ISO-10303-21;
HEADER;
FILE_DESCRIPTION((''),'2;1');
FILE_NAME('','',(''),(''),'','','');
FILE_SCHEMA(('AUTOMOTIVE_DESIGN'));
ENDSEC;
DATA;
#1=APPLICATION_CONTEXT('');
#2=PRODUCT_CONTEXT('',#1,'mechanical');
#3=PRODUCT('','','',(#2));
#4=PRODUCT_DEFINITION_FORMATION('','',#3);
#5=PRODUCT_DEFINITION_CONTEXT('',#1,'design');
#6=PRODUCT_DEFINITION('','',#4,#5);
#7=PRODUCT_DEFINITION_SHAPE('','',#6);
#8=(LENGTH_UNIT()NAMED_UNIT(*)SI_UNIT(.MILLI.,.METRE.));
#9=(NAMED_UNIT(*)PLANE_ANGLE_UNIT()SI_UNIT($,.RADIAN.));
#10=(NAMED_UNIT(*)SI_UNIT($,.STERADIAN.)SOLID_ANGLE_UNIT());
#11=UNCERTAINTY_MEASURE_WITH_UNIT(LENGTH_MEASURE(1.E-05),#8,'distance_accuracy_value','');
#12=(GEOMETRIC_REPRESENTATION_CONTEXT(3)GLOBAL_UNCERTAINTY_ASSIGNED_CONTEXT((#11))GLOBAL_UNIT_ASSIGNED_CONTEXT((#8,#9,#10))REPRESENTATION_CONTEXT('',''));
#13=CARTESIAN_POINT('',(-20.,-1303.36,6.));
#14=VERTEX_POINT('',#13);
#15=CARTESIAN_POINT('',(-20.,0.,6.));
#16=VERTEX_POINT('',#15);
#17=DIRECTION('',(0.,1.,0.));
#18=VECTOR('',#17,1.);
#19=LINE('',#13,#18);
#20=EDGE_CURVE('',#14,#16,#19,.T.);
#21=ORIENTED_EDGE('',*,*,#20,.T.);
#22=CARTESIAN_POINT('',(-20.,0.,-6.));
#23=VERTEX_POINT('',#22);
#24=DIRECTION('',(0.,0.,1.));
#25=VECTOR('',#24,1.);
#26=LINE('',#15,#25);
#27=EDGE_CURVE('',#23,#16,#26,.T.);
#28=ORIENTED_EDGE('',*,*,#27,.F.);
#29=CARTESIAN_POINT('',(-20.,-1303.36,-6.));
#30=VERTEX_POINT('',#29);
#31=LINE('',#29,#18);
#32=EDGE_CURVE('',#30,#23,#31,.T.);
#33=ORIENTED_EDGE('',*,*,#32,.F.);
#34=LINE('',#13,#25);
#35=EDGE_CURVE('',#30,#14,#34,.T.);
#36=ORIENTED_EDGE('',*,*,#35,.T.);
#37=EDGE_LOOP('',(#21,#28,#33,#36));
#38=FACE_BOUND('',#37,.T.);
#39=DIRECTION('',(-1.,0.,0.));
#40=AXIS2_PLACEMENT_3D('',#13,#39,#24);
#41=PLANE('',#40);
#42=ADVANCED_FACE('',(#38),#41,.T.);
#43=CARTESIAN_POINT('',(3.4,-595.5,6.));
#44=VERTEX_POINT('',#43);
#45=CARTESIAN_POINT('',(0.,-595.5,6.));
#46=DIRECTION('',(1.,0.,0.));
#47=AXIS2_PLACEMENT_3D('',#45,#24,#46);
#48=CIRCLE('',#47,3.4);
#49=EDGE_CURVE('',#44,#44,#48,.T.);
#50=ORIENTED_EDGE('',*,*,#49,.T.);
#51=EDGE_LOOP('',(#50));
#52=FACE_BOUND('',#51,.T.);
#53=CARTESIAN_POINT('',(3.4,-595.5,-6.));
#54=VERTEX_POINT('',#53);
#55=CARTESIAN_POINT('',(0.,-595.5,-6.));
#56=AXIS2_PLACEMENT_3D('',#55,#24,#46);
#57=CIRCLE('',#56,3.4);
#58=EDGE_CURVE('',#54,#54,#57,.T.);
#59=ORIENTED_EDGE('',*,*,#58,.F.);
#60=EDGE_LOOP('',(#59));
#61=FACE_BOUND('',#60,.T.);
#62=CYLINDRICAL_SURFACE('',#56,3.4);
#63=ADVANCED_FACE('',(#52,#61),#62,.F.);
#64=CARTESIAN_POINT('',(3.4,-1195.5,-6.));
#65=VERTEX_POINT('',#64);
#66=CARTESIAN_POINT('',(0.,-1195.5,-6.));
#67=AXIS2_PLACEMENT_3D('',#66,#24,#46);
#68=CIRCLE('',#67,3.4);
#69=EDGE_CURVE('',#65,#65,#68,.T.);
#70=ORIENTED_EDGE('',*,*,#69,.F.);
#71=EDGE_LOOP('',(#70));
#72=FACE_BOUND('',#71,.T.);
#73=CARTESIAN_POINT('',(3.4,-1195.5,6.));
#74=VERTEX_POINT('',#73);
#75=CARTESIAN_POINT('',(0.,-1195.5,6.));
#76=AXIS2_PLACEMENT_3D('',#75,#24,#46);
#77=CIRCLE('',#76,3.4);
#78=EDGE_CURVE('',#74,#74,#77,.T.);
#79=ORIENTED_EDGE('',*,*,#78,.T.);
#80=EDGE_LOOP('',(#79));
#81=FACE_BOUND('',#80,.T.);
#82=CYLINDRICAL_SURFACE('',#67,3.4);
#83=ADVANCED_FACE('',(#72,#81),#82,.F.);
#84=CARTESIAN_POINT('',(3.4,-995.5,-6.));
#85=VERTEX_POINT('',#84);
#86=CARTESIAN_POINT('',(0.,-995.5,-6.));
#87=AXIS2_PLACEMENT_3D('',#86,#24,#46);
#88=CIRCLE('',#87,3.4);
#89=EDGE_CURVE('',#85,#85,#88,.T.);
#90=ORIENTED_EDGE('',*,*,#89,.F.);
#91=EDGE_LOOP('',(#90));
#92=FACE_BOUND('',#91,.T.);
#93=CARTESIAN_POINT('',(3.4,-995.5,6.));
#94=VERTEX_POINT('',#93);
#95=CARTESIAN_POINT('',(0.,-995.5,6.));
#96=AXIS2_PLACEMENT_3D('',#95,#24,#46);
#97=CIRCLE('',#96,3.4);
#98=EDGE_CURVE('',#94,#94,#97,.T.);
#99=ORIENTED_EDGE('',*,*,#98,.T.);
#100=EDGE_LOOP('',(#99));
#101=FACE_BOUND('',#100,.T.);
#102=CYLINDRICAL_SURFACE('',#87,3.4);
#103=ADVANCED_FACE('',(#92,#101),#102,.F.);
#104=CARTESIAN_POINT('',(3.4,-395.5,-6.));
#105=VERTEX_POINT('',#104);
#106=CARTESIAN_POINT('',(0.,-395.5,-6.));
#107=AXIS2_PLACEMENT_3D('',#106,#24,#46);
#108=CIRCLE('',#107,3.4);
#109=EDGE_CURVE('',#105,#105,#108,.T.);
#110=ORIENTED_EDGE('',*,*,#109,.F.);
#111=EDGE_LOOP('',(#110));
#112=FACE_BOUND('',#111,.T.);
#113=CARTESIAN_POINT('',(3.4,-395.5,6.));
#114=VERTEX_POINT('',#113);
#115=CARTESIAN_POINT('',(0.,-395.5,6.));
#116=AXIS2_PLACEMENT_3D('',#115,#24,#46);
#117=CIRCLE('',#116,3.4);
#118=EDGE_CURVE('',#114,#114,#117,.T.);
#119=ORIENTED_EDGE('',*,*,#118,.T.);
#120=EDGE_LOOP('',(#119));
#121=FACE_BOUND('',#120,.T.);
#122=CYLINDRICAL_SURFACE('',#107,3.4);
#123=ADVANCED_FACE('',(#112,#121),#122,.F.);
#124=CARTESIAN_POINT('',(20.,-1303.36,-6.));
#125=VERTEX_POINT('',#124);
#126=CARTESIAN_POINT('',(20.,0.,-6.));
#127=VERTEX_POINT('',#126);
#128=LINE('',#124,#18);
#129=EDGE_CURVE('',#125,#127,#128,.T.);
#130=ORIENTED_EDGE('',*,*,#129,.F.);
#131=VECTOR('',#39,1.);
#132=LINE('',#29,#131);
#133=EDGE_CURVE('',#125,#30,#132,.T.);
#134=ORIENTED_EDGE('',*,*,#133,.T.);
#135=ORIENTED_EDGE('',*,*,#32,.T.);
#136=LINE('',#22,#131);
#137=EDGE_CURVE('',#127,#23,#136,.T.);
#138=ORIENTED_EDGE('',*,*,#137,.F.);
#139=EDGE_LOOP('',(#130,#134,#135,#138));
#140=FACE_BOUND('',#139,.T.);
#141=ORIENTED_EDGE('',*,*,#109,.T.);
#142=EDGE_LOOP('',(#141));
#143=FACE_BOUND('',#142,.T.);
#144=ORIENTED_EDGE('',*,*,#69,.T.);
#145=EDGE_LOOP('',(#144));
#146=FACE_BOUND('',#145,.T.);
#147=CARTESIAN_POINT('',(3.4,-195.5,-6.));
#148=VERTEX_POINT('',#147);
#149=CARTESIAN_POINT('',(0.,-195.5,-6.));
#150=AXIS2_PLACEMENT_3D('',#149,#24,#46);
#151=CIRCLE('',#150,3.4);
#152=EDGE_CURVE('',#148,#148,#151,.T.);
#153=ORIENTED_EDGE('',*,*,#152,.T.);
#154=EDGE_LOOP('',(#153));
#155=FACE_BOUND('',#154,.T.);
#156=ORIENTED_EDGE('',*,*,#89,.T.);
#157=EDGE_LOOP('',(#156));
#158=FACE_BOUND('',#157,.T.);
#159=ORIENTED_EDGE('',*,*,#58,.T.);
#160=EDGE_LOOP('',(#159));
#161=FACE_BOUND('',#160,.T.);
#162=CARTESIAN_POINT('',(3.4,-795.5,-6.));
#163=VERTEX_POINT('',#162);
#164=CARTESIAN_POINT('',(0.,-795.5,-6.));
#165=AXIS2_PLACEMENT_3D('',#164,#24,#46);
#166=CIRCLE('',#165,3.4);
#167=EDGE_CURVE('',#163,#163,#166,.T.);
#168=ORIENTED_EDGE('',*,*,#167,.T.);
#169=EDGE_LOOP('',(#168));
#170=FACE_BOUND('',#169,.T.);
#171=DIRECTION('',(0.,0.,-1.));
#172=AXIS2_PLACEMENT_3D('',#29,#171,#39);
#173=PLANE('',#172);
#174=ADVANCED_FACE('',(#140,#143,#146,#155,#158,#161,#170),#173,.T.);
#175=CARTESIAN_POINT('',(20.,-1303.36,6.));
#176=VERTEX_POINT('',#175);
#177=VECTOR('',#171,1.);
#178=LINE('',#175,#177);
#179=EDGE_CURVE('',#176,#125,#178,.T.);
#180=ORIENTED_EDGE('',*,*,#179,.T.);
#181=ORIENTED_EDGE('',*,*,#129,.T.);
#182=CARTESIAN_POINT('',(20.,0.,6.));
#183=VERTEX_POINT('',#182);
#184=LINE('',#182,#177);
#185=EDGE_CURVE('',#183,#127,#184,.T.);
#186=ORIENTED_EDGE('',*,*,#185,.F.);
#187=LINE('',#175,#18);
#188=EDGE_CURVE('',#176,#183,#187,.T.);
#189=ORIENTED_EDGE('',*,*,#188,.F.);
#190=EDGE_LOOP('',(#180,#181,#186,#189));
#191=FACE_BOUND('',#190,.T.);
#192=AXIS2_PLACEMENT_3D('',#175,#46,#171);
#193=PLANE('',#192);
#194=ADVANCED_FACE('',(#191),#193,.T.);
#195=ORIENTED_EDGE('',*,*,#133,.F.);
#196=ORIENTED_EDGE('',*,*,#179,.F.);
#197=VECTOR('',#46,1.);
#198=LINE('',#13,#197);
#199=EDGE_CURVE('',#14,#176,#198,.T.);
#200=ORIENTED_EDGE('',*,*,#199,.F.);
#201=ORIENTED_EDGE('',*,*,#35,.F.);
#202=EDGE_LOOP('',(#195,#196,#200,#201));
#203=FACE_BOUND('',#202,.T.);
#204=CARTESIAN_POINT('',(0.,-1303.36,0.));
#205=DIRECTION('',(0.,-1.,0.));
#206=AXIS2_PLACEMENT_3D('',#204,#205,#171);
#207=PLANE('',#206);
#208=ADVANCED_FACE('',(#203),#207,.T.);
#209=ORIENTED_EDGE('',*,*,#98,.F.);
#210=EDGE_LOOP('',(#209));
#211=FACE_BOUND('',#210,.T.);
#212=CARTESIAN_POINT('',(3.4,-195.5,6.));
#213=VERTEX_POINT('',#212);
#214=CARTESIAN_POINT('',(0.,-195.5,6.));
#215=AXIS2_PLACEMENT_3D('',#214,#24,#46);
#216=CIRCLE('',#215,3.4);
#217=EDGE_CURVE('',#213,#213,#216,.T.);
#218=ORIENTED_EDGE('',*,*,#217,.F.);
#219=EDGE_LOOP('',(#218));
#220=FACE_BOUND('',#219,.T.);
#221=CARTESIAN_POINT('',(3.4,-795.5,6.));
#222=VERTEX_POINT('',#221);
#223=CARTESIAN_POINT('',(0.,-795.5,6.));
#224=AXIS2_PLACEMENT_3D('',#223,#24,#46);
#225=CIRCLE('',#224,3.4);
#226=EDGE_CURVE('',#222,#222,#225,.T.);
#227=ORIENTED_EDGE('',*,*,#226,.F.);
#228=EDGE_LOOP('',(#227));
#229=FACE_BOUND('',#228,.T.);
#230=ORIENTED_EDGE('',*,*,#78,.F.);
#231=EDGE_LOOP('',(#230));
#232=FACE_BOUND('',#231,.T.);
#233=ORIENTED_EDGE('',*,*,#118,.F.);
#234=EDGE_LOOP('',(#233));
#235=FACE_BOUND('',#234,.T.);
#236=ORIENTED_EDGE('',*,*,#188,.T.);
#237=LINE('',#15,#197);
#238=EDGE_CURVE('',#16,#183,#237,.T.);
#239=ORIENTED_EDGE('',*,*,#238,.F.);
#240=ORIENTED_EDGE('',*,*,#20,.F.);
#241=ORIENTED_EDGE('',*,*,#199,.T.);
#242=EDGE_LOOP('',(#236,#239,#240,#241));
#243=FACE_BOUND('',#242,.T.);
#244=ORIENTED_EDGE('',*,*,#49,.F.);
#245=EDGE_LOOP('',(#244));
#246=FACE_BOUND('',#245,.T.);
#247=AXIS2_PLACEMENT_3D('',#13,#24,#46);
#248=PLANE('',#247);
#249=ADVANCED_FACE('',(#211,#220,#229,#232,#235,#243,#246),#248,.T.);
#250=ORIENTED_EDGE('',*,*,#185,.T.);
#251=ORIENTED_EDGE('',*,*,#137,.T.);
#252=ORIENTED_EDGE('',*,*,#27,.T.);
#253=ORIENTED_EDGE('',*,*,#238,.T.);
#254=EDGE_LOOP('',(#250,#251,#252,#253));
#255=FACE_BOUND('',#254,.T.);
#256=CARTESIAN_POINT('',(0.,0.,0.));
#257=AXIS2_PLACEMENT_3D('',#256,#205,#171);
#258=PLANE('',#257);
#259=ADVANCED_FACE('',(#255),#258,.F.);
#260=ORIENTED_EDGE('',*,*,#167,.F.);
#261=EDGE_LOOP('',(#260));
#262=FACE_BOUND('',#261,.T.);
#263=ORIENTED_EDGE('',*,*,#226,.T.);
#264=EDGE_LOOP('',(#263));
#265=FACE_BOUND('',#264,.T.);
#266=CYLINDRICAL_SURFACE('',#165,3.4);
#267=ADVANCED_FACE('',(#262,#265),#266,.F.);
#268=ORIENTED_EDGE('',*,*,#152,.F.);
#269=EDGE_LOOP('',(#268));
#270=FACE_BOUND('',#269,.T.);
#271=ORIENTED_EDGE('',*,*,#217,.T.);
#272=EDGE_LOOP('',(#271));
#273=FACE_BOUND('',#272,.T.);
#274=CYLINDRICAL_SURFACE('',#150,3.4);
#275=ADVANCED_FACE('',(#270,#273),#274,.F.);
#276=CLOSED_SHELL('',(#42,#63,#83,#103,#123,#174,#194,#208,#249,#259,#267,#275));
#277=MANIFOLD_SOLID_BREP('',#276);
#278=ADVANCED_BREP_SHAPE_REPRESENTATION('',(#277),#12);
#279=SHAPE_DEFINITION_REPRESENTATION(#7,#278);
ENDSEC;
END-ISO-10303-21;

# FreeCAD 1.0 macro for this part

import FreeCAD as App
import Part
import Sketcher

V = App.Vector
Q = App.Units.Quantity

doc = App.newDocument("Part")
body = doc.addObject("PartDesign::Body", "Body")

sketch1 = body.newObject("Sketcher::SketchObject", "Sketch")
sketch1.AttachmentSupport = (doc.getObject("XZ_Plane"), [""])
sketch1.MapMode = "FlatFace"
sketch1.addGeometry([
    Part.LineSegment(V(-20, -6, 0), V(-20, 6, 0)),
    Part.LineSegment(V(-20, 6, 0), V(20, 6, 0)),
    Part.LineSegment(V(20, 6, 0), V(20, -6, 0)),
    Part.LineSegment(V(20, -6, 0), V(-20, -6, 0)),
], False)
sketch1.addConstraint([
    Sketcher.Constraint("Coincident", 0, 2, 1, 1),
    Sketcher.Constraint("Coincident", 1, 2, 2, 1),
    Sketcher.Constraint("Coincident", 2, 2, 3, 1),
    Sketcher.Constraint("Coincident", 3, 2, 0, 1),
    Sketcher.Constraint("Vertical", 0),
    Sketcher.Constraint("Horizontal", 1),
    Sketcher.Constraint("Vertical", 2),
    Sketcher.Constraint("Horizontal", 3),
    Sketcher.Constraint("Symmetric", 0, 2, 2, 2, -1, 1),
    Sketcher.Constraint("DistanceX", 1, 1, 1, 2, Q("40 mm")),
    Sketcher.Constraint("DistanceY", 0, 1, 0, 2, Q("12 mm")),
])
pad1 = body.newObject("PartDesign::Pad", "Pad")
pad1.Profile = sketch1
pad1.Length = 1303.36

sketch2 = body.newObject("Sketcher::SketchObject", "Sketch001")
sketch2.AttachmentSupport = (doc.getObject("XY_Plane"), [""])
sketch2.MapMode = "FlatFace"
sketch2.AttachmentOffset = App.Placement(V(0, 0, 6), App.Rotation())
sketch2.addGeometry([
    Part.Circle(V(0, -995.5, 0), V(0, 0, 1), 3.4),
    Part.Circle(V(0, -795.5, 0), V(0, 0, 1), 3.4),
    Part.Circle(V(0, -395.5, 0), V(0, 0, 1), 3.4),
    Part.Circle(V(0, -195.5, 0), V(0, 0, 1), 3.4),
    Part.Circle(V(0, 4.5, 0), V(0, 0, 1), 3.4),
    Part.Circle(V(0, -595.5, 0), V(0, 0, 1), 3.4),
    Part.Circle(V(0, -1195.5, 0), V(0, 0, 1), 3.4),
], False)
sketch2.addConstraint([
    Sketcher.Constraint("Equal", 0, 1),
    Sketcher.Constraint("Equal", 1, 2),
    Sketcher.Constraint("Equal", 2, 3),
    Sketcher.Constraint("Equal", 3, 4),
    Sketcher.Constraint("Equal", 4, 5),
    Sketcher.Constraint("Equal", 5, 6),
    Sketcher.Constraint("PointOnObject", 0, 3, -2),
    Sketcher.Constraint("PointOnObject", 1, 3, -2),
    Sketcher.Constraint("PointOnObject", 2, 3, -2),
    Sketcher.Constraint("PointOnObject", 3, 3, -2),
    Sketcher.Constraint("PointOnObject", 4, 3, -2),
    Sketcher.Constraint("PointOnObject", 5, 3, -2),
    Sketcher.Constraint("PointOnObject", 6, 3, -2),
    Sketcher.Constraint("Diameter", 0, Q("6.8 mm")),
    Sketcher.Constraint("DistanceY", 0, 3, 1, 3, Q("200 mm")),
    Sketcher.Constraint("DistanceY", 1, 3, 2, 3, Q("400 mm")),
    Sketcher.Constraint("DistanceY", 2, 3, 3, 3, Q("200 mm")),
    Sketcher.Constraint("DistanceY", 3, 3, 4, 3, Q("200 mm")),
    Sketcher.Constraint("DistanceY", 1, 3, 5, 3, Q("200 mm")),
    Sketcher.Constraint("DistanceY", 6, 3, 0, 3, Q("200 mm")),
    Sketcher.Constraint("DistanceY", 0, 3, -1, 1, Q("995.5 mm")),
])
pocket1 = body.newObject("PartDesign::Pocket", "Pocket")
pocket1.Profile = sketch2
pocket1.Type = "ThroughAll"

doc.recompute()
